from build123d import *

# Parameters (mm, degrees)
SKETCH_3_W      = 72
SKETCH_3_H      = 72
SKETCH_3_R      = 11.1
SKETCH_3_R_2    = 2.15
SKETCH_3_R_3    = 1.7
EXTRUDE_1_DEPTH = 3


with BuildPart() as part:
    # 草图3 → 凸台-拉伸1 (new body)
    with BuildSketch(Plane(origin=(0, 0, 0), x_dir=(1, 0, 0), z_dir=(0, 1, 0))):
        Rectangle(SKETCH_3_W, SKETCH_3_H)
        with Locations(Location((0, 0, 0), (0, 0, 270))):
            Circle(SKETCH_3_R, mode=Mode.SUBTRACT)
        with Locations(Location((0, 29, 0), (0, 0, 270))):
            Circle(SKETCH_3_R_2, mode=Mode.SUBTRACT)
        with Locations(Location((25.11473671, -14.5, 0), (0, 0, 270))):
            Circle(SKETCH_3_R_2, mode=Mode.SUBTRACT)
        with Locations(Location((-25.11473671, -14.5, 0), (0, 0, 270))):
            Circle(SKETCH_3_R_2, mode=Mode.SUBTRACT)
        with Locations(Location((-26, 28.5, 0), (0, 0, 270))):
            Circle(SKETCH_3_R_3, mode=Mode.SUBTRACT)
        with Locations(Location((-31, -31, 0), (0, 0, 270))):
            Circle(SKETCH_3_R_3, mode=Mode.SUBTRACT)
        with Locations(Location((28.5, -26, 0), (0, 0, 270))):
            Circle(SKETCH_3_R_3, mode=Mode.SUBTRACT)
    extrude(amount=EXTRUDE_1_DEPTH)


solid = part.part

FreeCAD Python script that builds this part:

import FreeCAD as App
import Part
import Sketcher

doc = App.newDocument("Part")
body = doc.addObject("PartDesign::Body", "Body")

# Sketch on XZ plane
sketch1 = doc.addObject("Sketcher::SketchObject", "Sketch")
body.addObject(sketch1)
sketch1.AttachmentSupport = (doc.XZ_Plane, [""])
sketch1.MapMode = "FlatFace"
sketch1.addGeometry(Part.LineSegment(App.Vector(-36, -36, 0), App.Vector(-36, 36, 0)), False)
sketch1.addGeometry(Part.LineSegment(App.Vector(-36, 36, 0), App.Vector(36, 36, 0)), False)
sketch1.addGeometry(Part.LineSegment(App.Vector(36, 36, 0), App.Vector(36, -36, 0)), False)
sketch1.addGeometry(Part.LineSegment(App.Vector(36, -36, 0), App.Vector(-36, -36, 0)), False)
sketch1.addGeometry(Part.Circle(App.Vector(-31, 31, 0), App.Vector(0, 0, 1), 1.7), False)
sketch1.addGeometry(Part.Circle(App.Vector(-25.1, 14.5, 0), App.Vector(0, 0, 1), 2.1), False)
sketch1.addGeometry(Part.Circle(App.Vector(28.5, 26, 0), App.Vector(0, 0, 1), 1.7), False)
sketch1.addGeometry(Part.Circle(App.Vector(25.1, 14.5, 0), App.Vector(0, 0, 1), 2.1), False)
sketch1.addGeometry(Part.Circle(App.Vector(-26, -28.5, 0), App.Vector(0, 0, 1), 1.7), False)
sketch1.addGeometry(Part.Circle(App.Vector(0, 0, 0), App.Vector(0, 0, 1), 11.1), False)
sketch1.addGeometry(Part.Circle(App.Vector(0, -29, 0), App.Vector(0, 0, 1), 2.1), False)
sketch1.addConstraint(Sketcher.Constraint("Coincident", 0, 2, 1, 1))
sketch1.addConstraint(Sketcher.Constraint("Coincident", 1, 2, 2, 1))
sketch1.addConstraint(Sketcher.Constraint("Coincident", 2, 2, 3, 1))
sketch1.addConstraint(Sketcher.Constraint("Coincident", 3, 2, 0, 1))
sketch1.addConstraint(Sketcher.Constraint("Vertical", 0))
sketch1.addConstraint(Sketcher.Constraint("Horizontal", 1))
sketch1.addConstraint(Sketcher.Constraint("Vertical", 2))
sketch1.addConstraint(Sketcher.Constraint("Horizontal", 3))
sketch1.addConstraint(Sketcher.Constraint("Coincident", 9, 3, -1, 1))
sketch1.addConstraint(Sketcher.Constraint("Equal", 4, 6))
sketch1.addConstraint(Sketcher.Constraint("Equal", 5, 7))
sketch1.addConstraint(Sketcher.Constraint("Equal", 6, 8))
sketch1.addConstraint(Sketcher.Constraint("Equal", 7, 10))
sketch1.addConstraint(Sketcher.Constraint("Symmetric", 0, 2, 2, 2, -1, 1))
sketch1.addConstraint(Sketcher.Constraint("Symmetric", 5, 3, 7, 3, -2))
sketch1.addConstraint(Sketcher.Constraint("PointOnObject", 10, 3, -2))
sketch1.addConstraint(Sketcher.Constraint("Equal", 3, 0))
sketch1.addConstraint(Sketcher.Constraint("Diameter", 4, 3.4))
sketch1.addConstraint(Sketcher.Constraint("Diameter", 5, 4.3))
sketch1.addConstraint(Sketcher.Constraint("Diameter", 9, 22.2))
sketch1.addConstraint(Sketcher.Constraint("DistanceX", 1, 1, 1, 2, 72.0))
sketch1.addConstraint(Sketcher.Constraint("DistanceX", 4, 3, -1, 1, 31.0))
sketch1.addConstraint(Sketcher.Constraint("DistanceY", -1, 1, 4, 3, 31.0))
sketch1.addConstraint(Sketcher.Constraint("DistanceY", -1, 1, 6, 3, 26.0))
sketch1.addConstraint(Sketcher.Constraint("DistanceX", 8, 3, -1, 1, 26.0))
sketch1.addConstraint(Sketcher.Constraint("DistanceY", 10, 3, -1, 1, 29.0))
sketch1.addConstraint(Sketcher.Constraint("DistanceY", 8, 3, 5, 3, 43.0))
sketch1.addConstraint(Sketcher.Constraint("DistanceY", -1, 1, 5, 3, 14.5))
sketch1.addConstraint(Sketcher.Constraint("DistanceX", -1, 1, 6, 3, 28.5))
sketch1.addConstraint(Sketcher.Constraint("DistanceX", 5, 3, -1, 1, 25.114737))
pad1 = doc.addObject("PartDesign::Pad", "Pad")
body.addObject(pad1)
pad1.Profile = sketch1
pad1.Length = 3
pad1.Reversed = True

doc.recompute()
